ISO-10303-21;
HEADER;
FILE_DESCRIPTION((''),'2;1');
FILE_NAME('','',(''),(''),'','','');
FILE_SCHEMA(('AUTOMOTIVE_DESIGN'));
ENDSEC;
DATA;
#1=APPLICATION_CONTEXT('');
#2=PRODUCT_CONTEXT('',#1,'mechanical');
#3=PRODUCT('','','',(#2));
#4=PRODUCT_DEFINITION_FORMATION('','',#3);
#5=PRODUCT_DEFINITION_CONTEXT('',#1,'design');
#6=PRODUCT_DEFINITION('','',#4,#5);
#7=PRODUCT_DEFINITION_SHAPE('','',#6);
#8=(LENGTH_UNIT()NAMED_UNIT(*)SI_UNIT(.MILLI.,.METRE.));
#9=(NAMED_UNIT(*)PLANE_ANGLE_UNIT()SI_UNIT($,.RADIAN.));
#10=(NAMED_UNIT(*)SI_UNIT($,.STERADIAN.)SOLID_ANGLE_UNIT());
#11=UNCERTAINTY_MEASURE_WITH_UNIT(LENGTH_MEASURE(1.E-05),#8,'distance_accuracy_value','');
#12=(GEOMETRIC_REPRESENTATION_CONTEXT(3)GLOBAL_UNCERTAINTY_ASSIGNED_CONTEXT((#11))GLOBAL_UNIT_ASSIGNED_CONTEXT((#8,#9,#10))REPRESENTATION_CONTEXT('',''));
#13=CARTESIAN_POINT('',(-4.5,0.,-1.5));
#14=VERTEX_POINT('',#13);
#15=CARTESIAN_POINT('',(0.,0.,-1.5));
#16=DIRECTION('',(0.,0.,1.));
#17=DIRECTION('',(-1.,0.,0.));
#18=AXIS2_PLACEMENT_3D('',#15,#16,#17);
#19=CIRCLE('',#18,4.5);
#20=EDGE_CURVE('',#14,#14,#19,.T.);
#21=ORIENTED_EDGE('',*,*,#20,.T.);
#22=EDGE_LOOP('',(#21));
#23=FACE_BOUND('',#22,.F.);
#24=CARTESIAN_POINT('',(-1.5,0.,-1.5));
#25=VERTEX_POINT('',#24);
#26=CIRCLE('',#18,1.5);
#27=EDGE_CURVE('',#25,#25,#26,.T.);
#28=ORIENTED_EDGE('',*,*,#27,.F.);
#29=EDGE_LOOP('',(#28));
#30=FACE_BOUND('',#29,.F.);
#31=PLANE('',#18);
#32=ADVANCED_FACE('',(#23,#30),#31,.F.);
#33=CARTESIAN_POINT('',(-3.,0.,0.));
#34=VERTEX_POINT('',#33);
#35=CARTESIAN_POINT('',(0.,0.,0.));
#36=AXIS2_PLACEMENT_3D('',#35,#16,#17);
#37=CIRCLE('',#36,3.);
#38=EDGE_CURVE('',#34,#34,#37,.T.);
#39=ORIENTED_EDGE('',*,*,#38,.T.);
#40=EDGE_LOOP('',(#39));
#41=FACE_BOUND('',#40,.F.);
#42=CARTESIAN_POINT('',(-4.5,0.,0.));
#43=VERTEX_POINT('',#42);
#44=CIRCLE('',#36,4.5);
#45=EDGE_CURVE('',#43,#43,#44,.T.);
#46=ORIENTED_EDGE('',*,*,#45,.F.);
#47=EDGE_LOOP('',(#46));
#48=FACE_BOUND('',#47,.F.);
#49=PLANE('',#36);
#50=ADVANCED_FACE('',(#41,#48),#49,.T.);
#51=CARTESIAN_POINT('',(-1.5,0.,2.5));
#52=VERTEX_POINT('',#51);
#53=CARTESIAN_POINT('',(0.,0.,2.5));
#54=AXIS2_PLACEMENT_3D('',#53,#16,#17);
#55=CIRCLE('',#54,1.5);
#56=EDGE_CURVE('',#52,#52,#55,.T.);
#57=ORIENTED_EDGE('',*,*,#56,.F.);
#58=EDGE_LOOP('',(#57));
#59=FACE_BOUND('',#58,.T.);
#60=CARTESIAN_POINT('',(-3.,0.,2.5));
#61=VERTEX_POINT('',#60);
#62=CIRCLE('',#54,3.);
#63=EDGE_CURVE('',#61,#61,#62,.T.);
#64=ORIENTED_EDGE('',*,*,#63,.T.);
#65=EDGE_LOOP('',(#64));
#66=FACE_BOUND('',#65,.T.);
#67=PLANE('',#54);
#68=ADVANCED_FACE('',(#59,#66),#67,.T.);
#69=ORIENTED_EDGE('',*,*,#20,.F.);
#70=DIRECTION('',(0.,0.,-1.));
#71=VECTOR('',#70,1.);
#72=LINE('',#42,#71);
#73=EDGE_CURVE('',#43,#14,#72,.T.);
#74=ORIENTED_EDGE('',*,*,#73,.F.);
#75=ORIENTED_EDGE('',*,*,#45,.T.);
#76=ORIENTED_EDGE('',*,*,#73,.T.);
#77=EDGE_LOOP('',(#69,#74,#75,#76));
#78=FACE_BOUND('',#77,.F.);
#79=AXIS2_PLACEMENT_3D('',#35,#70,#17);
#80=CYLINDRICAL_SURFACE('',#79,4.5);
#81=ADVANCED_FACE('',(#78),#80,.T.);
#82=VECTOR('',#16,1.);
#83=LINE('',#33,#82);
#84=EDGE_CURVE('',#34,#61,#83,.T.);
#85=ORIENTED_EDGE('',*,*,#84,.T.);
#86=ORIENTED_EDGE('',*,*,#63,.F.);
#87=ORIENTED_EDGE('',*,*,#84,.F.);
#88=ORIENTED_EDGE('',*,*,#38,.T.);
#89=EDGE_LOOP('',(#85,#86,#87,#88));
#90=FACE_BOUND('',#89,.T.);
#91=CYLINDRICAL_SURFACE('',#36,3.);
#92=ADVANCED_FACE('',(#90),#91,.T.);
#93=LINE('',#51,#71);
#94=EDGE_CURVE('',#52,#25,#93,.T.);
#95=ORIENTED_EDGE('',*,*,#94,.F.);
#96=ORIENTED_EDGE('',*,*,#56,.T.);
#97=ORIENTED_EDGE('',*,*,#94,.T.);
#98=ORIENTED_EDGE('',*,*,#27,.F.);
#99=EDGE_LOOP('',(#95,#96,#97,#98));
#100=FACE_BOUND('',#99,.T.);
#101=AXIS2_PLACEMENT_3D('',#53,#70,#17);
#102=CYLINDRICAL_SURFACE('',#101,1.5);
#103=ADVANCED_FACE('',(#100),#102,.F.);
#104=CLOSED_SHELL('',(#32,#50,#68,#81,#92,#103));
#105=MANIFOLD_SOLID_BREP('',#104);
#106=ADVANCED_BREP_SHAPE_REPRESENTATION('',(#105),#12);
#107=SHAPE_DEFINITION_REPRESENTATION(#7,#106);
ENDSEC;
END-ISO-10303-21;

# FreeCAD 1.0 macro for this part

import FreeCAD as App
import Part
import Sketcher

V = App.Vector
Q = App.Units.Quantity

doc = App.newDocument("Part")
body = doc.addObject("PartDesign::Body", "Body")

sketch1 = body.newObject("Sketcher::SketchObject", "Sketch")
sketch1.AttachmentSupport = (doc.getObject("XZ_Plane"), [""])
sketch1.MapMode = "FlatFace"
sketch1.addGeometry(Part.LineSegment(V(-1.5, 2.5, 0), V(-1.5, -1.5, 0)), False)
sketch1.addGeometry(Part.LineSegment(V(-1.5, -1.5, 0), V(-4.5, -1.5, 0)), False)
sketch1.addGeometry(Part.LineSegment(V(-4.5, -1.5, 0), V(-4.5, 0, 0)), False)
sketch1.addGeometry(Part.LineSegment(V(-4.5, 0, 0), V(-3, 0, 0)), False)
sketch1.addGeometry(Part.LineSegment(V(-3, 0, 0), V(-3, 2.5, 0)), False)
sketch1.addGeometry(Part.LineSegment(V(-3, 2.5, 0), V(-1.5, 2.5, 0)), False)
sketch1.addConstraint(Sketcher.Constraint("Coincident", 0, 2, 1, 1))
sketch1.addConstraint(Sketcher.Constraint("Coincident", 1, 2, 2, 1))
sketch1.addConstraint(Sketcher.Constraint("Coincident", 2, 2, 3, 1))
sketch1.addConstraint(Sketcher.Constraint("Coincident", 3, 2, 4, 1))
sketch1.addConstraint(Sketcher.Constraint("Coincident", 4, 2, 5, 1))
sketch1.addConstraint(Sketcher.Constraint("Coincident", 5, 2, 0, 1))
sketch1.addConstraint(Sketcher.Constraint("Vertical", 0))
sketch1.addConstraint(Sketcher.Constraint("Horizontal", 1))
sketch1.addConstraint(Sketcher.Constraint("Vertical", 2))
sketch1.addConstraint(Sketcher.Constraint("Horizontal", 3))
sketch1.addConstraint(Sketcher.Constraint("Vertical", 4))
sketch1.addConstraint(Sketcher.Constraint("Horizontal", 5))
sketch1.addConstraint(Sketcher.Constraint("PointOnObject", 2, 2, -1))
sketch1.addConstraint(Sketcher.Constraint("Equal", 3, 5))
sketch1.addConstraint(Sketcher.Constraint("Equal", 5, 2))
sketch1.addConstraint(Sketcher.Constraint("DistanceX", 1, 2, 1, 1, Q("3 mm")))
sketch1.addConstraint(Sketcher.Constraint("DistanceY", 4, 1, 4, 2, Q("2.5 mm")))
sketch1.addConstraint(Sketcher.Constraint("DistanceX", 3, 2, -1, 1, Q("3 mm")))
revolution = body.newObject("PartDesign::Revolution", "Revolution")
revolution.Profile = sketch1
revolution.ReferenceAxis = (sketch1, ["V_Axis"])
revolution.Angle = 360

doc.recompute()
